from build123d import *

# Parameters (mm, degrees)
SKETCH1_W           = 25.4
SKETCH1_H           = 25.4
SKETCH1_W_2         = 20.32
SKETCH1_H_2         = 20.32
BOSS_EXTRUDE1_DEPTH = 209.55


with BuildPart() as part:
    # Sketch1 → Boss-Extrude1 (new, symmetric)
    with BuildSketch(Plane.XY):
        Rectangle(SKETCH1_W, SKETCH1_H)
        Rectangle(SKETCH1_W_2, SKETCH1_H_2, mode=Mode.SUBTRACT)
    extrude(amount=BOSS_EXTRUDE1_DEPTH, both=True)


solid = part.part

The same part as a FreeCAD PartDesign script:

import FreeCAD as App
import Part
import Sketcher

V = App.Vector
Q = App.Units.Quantity

doc = App.newDocument("Part")
body = doc.addObject("PartDesign::Body", "Body")

# Sketch on XY plane
sketch1 = doc.addObject("Sketcher::SketchObject", "Sketch")
body.addObject(sketch1)
sketch1.AttachmentSupport = (doc.XY_Plane, [""])
sketch1.MapMode = "FlatFace"
sketch1.addGeometry([
    Part.LineSegment(V(-13, 13, 0), V(-13, -13, 0)),  # 0
    Part.LineSegment(V(-13, -13, 0), V(13, -13, 0)),  # 1
    Part.LineSegment(V(13, -13, 0), V(13, 13, 0)),  # 2
    Part.LineSegment(V(13, 13, 0), V(-13, 13, 0)),  # 3
    Part.LineSegment(V(10, -10, 0), V(-10, -10, 0)),  # 4
    Part.LineSegment(V(-10, -10, 0), V(-10, 10, 0)),  # 5
    Part.LineSegment(V(-10, 10, 0), V(10, 10, 0)),  # 6
    Part.LineSegment(V(10, 10, 0), V(10, -10, 0)),  # 7
], False)
sketch1.addConstraint([
    Sketcher.Constraint("Coincident", 0, 2, 1, 1),
    Sketcher.Constraint("Coincident", 1, 2, 2, 1),
    Sketcher.Constraint("Coincident", 2, 2, 3, 1),
    Sketcher.Constraint("Coincident", 3, 2, 0, 1),
    Sketcher.Constraint("Coincident", 4, 2, 5, 1),
    Sketcher.Constraint("Coincident", 5, 2, 6, 1),
    Sketcher.Constraint("Coincident", 6, 2, 7, 1),
    Sketcher.Constraint("Coincident", 7, 2, 4, 1),
    Sketcher.Constraint("Vertical", 0),
    Sketcher.Constraint("Horizontal", 1),
    Sketcher.Constraint("Vertical", 2),
    Sketcher.Constraint("Horizontal", 3),
    Sketcher.Constraint("Horizontal", 4),
    Sketcher.Constraint("Vertical", 5),
    Sketcher.Constraint("Horizontal", 6),
    Sketcher.Constraint("Vertical", 7),
    Sketcher.Constraint("Symmetric", 0, 2, 2, 2, -1, 1),
    Sketcher.Constraint("Symmetric", 4, 2, 6, 2, -1, 1),
    Sketcher.Constraint("Equal", 3, 0),
    Sketcher.Constraint("Equal", 6, 5),
    Sketcher.Constraint("DistanceX", 1, 1, 1, 2, Q("1 in")),
    Sketcher.Constraint("DistanceX", 4, 2, 4, 1, Q("0.8 in")),
])
pad1 = doc.addObject("PartDesign::Pad", "Pad")
body.addObject(pad1)
pad1.Profile = sketch1
pad1.Length = Q("16.5 in")
pad1.Midplane = True

doc.recompute()
